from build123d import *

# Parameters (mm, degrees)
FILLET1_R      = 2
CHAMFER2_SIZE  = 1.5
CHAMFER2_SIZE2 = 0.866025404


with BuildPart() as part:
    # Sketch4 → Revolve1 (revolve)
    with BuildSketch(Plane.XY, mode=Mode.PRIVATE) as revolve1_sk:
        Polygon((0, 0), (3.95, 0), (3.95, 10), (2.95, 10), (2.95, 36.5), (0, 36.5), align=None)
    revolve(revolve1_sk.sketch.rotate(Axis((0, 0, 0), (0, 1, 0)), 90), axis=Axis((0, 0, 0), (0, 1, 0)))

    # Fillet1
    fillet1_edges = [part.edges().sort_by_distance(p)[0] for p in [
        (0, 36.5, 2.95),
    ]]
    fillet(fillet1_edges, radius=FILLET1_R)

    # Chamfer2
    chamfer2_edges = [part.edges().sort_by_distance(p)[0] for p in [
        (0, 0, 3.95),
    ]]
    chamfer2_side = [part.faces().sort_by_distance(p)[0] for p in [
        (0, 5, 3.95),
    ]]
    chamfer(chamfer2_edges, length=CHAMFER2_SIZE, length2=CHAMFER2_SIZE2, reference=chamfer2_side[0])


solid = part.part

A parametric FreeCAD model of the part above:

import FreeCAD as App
import Part
import Sketcher

V = App.Vector
Q = App.Units.Quantity


def edges_at(feature, points):
    """Names of the edges that pass closest to the given points."""
    edges = feature.Shape.Edges
    near = lambda p: min(range(len(edges)), key=lambda i: edges[i].distToShape(Part.Vertex(*p))[0])
    return sorted({f"Edge{near(p) + 1}" for p in points})

doc = App.newDocument("Part")
body = doc.addObject("PartDesign::Body", "Body")

# Sketch on XY plane
sketch1 = doc.addObject("Sketcher::SketchObject", "Sketch")
body.addObject(sketch1)
sketch1.AttachmentSupport = (doc.XY_Plane, [""])
sketch1.MapMode = "FlatFace"
sketch1.addGeometry(Part.LineSegment(V(0, 0, 0), V(4, 0, 0)), False)
sketch1.addGeometry(Part.LineSegment(V(4, 0, 0), V(4, 10, 0)), False)
sketch1.addGeometry(Part.LineSegment(V(4, 10, 0), V(3, 10, 0)), False)
sketch1.addGeometry(Part.LineSegment(V(3, 10, 0), V(3, 36.5, 0)), False)
sketch1.addGeometry(Part.LineSegment(V(3, 36.5, 0), V(0, 36.5, 0)), False)
sketch1.addGeometry(Part.LineSegment(V(0, 36.5, 0), V(0, 0, 0)), False)
sketch1.addConstraint(Sketcher.Constraint("Coincident", 0, 2, 1, 1))
sketch1.addConstraint(Sketcher.Constraint("Coincident", 1, 2, 2, 1))
sketch1.addConstraint(Sketcher.Constraint("Coincident", 2, 2, 3, 1))
sketch1.addConstraint(Sketcher.Constraint("Coincident", 3, 2, 4, 1))
sketch1.addConstraint(Sketcher.Constraint("Coincident", 4, 2, 5, 1))
sketch1.addConstraint(Sketcher.Constraint("Coincident", 5, 2, 0, 1))
sketch1.addConstraint(Sketcher.Constraint("Horizontal", 0))
sketch1.addConstraint(Sketcher.Constraint("Vertical", 1))
sketch1.addConstraint(Sketcher.Constraint("Horizontal", 2))
sketch1.addConstraint(Sketcher.Constraint("Vertical", 3))
sketch1.addConstraint(Sketcher.Constraint("Horizontal", 4))
sketch1.addConstraint(Sketcher.Constraint("Vertical", 5))
sketch1.addConstraint(Sketcher.Constraint("Coincident", 5, 2, -1, 1))
sketch1.addConstraint(Sketcher.Constraint("DistanceX", 2, 2, 2, 1, Q("1 mm")))
sketch1.addConstraint(Sketcher.Constraint("DistanceY", 1, 1, 1, 2, Q("10 mm")))
sketch1.addConstraint(Sketcher.Constraint("DistanceY", 3, 1, 3, 2, Q("26.5 mm")))
sketch1.addConstraint(Sketcher.Constraint("DistanceX", 0, 1, 0, 2, Q("3.95 mm")))
revolution = doc.addObject("PartDesign::Revolution", "Revolution")
body.addObject(revolution)
revolution.Profile = sketch1
revolution.ReferenceAxis = (sketch1, ["V_Axis"])
revolution.Angle = 360
doc.recompute()

fillet = doc.addObject("PartDesign::Fillet", "Fillet")
body.addObject(fillet)
fillet.Base = (revolution, edges_at(revolution, [(0, 36.5, 2.95)]))
fillet.Radius = 2
doc.recompute()

chamfer = doc.addObject("PartDesign::Chamfer", "Chamfer")
body.addObject(chamfer)
chamfer.Base = (fillet, edges_at(fillet, [(0, 0, 3.95)]))
chamfer.ChamferType = "Two distances"
chamfer.Size = 1.5
chamfer.Size2 = 0.866025

doc.recompute()
